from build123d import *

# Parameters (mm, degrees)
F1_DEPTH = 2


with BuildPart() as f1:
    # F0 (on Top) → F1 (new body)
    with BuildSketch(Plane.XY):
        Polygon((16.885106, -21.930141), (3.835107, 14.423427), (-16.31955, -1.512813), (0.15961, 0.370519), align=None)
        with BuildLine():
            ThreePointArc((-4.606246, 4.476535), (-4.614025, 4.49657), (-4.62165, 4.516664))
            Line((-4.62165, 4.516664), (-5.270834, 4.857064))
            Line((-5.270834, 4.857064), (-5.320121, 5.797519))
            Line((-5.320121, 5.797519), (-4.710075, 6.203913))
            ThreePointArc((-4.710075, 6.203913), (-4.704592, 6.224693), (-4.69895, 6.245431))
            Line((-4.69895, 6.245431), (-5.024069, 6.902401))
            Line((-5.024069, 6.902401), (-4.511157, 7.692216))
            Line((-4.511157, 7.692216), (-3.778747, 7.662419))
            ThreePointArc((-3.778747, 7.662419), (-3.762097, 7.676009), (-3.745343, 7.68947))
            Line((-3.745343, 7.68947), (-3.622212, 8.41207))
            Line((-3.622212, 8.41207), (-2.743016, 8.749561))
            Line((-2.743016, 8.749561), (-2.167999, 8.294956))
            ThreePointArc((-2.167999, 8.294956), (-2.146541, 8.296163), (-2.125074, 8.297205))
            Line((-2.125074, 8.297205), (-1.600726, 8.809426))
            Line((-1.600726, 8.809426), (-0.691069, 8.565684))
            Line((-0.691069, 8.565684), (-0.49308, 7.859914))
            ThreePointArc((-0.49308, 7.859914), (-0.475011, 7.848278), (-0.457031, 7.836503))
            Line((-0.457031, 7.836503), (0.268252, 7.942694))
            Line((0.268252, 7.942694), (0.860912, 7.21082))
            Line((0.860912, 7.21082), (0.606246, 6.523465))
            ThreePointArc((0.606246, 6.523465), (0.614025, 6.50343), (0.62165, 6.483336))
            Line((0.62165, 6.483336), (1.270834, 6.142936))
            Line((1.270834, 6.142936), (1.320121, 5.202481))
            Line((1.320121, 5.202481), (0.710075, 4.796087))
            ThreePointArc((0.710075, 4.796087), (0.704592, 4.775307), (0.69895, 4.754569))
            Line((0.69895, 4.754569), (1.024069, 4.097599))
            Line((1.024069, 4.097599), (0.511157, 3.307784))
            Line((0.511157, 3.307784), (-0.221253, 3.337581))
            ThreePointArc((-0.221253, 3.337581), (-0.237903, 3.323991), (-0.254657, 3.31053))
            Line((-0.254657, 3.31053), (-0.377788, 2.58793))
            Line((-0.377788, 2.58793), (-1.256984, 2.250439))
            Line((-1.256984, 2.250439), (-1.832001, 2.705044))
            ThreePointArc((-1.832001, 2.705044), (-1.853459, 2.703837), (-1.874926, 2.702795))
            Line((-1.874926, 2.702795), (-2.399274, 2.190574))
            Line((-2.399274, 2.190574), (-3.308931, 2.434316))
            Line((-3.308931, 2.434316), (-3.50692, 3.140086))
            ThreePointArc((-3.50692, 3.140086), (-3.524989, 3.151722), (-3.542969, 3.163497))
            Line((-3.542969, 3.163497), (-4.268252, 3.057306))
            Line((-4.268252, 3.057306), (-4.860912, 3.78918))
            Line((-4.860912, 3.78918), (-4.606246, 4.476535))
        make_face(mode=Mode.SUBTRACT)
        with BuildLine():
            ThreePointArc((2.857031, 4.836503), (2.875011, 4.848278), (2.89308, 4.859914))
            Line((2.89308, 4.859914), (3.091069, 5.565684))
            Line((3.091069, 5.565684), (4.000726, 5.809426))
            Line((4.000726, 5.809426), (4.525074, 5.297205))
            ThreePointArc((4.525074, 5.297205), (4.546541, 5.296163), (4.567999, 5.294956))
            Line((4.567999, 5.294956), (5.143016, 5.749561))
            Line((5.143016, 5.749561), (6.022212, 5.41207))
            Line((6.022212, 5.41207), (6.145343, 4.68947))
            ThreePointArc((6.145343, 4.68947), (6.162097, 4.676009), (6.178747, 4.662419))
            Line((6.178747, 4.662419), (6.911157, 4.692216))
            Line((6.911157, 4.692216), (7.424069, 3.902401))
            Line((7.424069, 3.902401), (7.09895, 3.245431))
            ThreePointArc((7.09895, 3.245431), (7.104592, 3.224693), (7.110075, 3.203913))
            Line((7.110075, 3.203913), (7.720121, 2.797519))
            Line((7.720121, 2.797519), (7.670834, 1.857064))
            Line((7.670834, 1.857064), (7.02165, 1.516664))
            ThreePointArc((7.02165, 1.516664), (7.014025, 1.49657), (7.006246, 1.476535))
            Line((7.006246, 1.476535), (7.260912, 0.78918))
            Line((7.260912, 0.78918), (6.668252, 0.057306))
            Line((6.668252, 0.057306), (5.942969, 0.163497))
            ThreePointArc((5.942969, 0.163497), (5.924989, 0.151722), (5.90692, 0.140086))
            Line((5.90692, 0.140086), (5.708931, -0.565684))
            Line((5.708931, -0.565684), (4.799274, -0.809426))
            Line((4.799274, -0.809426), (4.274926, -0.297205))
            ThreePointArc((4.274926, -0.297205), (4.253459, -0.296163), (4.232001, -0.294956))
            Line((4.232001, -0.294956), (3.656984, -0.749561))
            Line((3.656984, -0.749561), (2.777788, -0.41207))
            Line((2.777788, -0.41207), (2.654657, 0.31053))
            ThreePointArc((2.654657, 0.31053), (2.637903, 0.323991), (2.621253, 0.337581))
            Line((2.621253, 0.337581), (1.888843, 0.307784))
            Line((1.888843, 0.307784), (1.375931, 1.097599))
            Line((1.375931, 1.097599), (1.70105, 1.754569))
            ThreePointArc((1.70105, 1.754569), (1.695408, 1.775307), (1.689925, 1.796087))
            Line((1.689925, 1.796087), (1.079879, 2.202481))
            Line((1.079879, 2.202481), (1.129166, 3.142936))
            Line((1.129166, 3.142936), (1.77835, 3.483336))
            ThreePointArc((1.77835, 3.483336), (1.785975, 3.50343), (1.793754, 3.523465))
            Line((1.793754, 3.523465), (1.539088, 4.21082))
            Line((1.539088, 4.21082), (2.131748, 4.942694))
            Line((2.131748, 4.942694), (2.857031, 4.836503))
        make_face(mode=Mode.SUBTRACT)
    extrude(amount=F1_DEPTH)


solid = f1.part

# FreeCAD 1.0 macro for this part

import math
import FreeCAD as App
import Part
import Sketcher
from FreeCAD import Vector
Q = App.Units.Quantity

doc = App.newDocument("Part")
body = doc.addObject("PartDesign::Body", "Body")

# Sketch on XY plane
sketch1 = body.newObject("Sketcher::SketchObject", "Sketch")
sketch1.AttachmentSupport = (doc.getObject("XY_Plane"), [""])
sketch1.MapMode = "FlatFace"
sketch1.addGeometry(Part.LineSegment(Vector(16.885, -21.93, 0), Vector(3.835, 14.423, 0)), False)
sketch1.addGeometry(Part.LineSegment(Vector(3.835, 14.423, 0), Vector(-16.32, -1.513, 0)), False)
sketch1.addGeometry(Part.LineSegment(Vector(-16.32, -1.513, 0), Vector(0.16, 0.371, 0)), False)
sketch1.addGeometry(Part.LineSegment(Vector(0.16, 0.371, 0), Vector(16.885, -21.93, 0)), False)
sketch1.addGeometry(Part.LineSegment(Vector(2.132, 4.943, 0), Vector(2.857, 4.837, 0)), False)
sketch1.addGeometry(Part.ArcOfCircle(Part.Circle(Vector(4.399, 2.501, 0), Vector(0, 0, 1), 2.799), math.radians(122.56), math.radians(123.44)), False)
sketch1.addGeometry(Part.LineSegment(Vector(2.893, 4.86, 0), Vector(3.091, 5.566, 0)), False)
sketch1.addGeometry(Part.LineSegment(Vector(3.091, 5.566, 0), Vector(4.001, 5.809, 0)), False)
sketch1.addGeometry(Part.LineSegment(Vector(4.001, 5.809, 0), Vector(4.525, 5.297, 0)), False)
sketch1.addGeometry(Part.ArcOfCircle(Part.Circle(Vector(4.4, 2.505, 0), Vector(0, 0, 1), 2.795), math.radians(86.56), math.radians(87.44)), False)
sketch1.addGeometry(Part.LineSegment(Vector(4.568, 5.295, 0), Vector(5.143, 5.75, 0)), False)
sketch1.addGeometry(Part.LineSegment(Vector(5.143, 5.75, 0), Vector(6.022, 5.412, 0)), False)
sketch1.addGeometry(Part.LineSegment(Vector(6.022, 5.412, 0), Vector(6.145, 4.689, 0)), False)
sketch1.addGeometry(Part.ArcOfCircle(Part.Circle(Vector(4.408, 2.51, 0), Vector(0, 0, 1), 2.788), math.radians(50.56), math.radians(51.44)), False)
sketch1.addGeometry(Part.LineSegment(Vector(6.179, 4.662, 0), Vector(6.911, 4.692, 0)), False)
sketch1.addGeometry(Part.LineSegment(Vector(6.911, 4.692, 0), Vector(7.424, 3.902, 0)), False)
sketch1.addGeometry(Part.LineSegment(Vector(7.424, 3.902, 0), Vector(7.099, 3.245, 0)), False)
sketch1.addGeometry(Part.ArcOfCircle(Part.Circle(Vector(4.392, 2.498, 0), Vector(0, 0, 1), 2.809), math.radians(14.56), math.radians(15.44)), False)
sketch1.addGeometry(Part.LineSegment(Vector(7.11, 3.204, 0), Vector(7.72, 2.798, 0)), False)
sketch1.addGeometry(Part.LineSegment(Vector(7.72, 2.798, 0), Vector(7.671, 1.857, 0)), False)
sketch1.addGeometry(Part.LineSegment(Vector(7.671, 1.857, 0), Vector(7.022, 1.517, 0)), False)
sketch1.addGeometry(Part.ArcOfCircle(Part.Circle(Vector(4.399, 2.5, 0), Vector(0, 0, 1), 2.801), math.radians(-21.44), math.radians(-20.56)), False)
sketch1.addGeometry(Part.LineSegment(Vector(7.006, 1.477, 0), Vector(7.261, 0.789, 0)), False)
sketch1.addGeometry(Part.LineSegment(Vector(7.261, 0.789, 0), Vector(6.668, 0.057, 0)), False)
sketch1.addGeometry(Part.LineSegment(Vector(6.668, 0.057, 0), Vector(5.943, 0.163, 0)), False)
sketch1.addGeometry(Part.ArcOfCircle(Part.Circle(Vector(4.401, 2.499, 0), Vector(0, 0, 1), 2.799), math.radians(-57.44), math.radians(-56.56)), False)
sketch1.addGeometry(Part.LineSegment(Vector(5.907, 0.14, 0), Vector(5.709, -0.566, 0)), False)
sketch1.addGeometry(Part.LineSegment(Vector(5.709, -0.566, 0), Vector(4.799, -0.809, 0)), False)
sketch1.addGeometry(Part.LineSegment(Vector(4.799, -0.809, 0), Vector(4.275, -0.297, 0)), False)
sketch1.addGeometry(Part.ArcOfCircle(Part.Circle(Vector(4.4, 2.495, 0), Vector(0, 0, 1), 2.795), math.radians(-93.44), math.radians(-92.56)), False)
sketch1.addGeometry(Part.LineSegment(Vector(4.232, -0.295, 0), Vector(3.657, -0.75, 0)), False)
sketch1.addGeometry(Part.LineSegment(Vector(3.657, -0.75, 0), Vector(2.778, -0.412, 0)), False)
sketch1.addGeometry(Part.LineSegment(Vector(2.778, -0.412, 0), Vector(2.655, 0.311, 0)), False)
sketch1.addGeometry(Part.ArcOfCircle(Part.Circle(Vector(4.392, 2.49, 0), Vector(0, 0, 1), 2.788), math.radians(-129.44), math.radians(-128.56)), False)
sketch1.addGeometry(Part.LineSegment(Vector(2.621, 0.338, 0), Vector(1.889, 0.308, 0)), False)
sketch1.addGeometry(Part.LineSegment(Vector(1.889, 0.308, 0), Vector(1.376, 1.098, 0)), False)
sketch1.addGeometry(Part.LineSegment(Vector(1.376, 1.098, 0), Vector(1.701, 1.755, 0)), False)
sketch1.addGeometry(Part.ArcOfCircle(Part.Circle(Vector(4.408, 2.502, 0), Vector(0, 0, 1), 2.809), math.radians(-165.44), math.radians(-164.56)), False)
sketch1.addGeometry(Part.LineSegment(Vector(1.69, 1.796, 0), Vector(1.08, 2.202, 0)), False)
sketch1.addGeometry(Part.LineSegment(Vector(1.08, 2.202, 0), Vector(1.129, 3.143, 0)), False)
sketch1.addGeometry(Part.LineSegment(Vector(1.129, 3.143, 0), Vector(1.778, 3.483, 0)), False)
sketch1.addGeometry(Part.ArcOfCircle(Part.Circle(Vector(4.401, 2.5, 0), Vector(0, 0, 1), 2.801), math.radians(158.56), math.radians(159.44)), False)
sketch1.addGeometry(Part.LineSegment(Vector(1.794, 3.523, 0), Vector(1.539, 4.211, 0)), False)
sketch1.addGeometry(Part.LineSegment(Vector(1.539, 4.211, 0), Vector(2.132, 4.943, 0)), False)
sketch1.addGeometry(Part.LineSegment(Vector(-4.861, 3.789, 0), Vector(-4.606, 4.477, 0)), False)
sketch1.addGeometry(Part.ArcOfCircle(Part.Circle(Vector(-1.999, 5.5, 0), Vector(0, 0, 1), 2.801), math.radians(-159.44), math.radians(-158.56)), False)
sketch1.addGeometry(Part.LineSegment(Vector(-4.622, 4.517, 0), Vector(-5.271, 4.857, 0)), False)
sketch1.addGeometry(Part.LineSegment(Vector(-5.271, 4.857, 0), Vector(-5.32, 5.798, 0)), False)
sketch1.addGeometry(Part.LineSegment(Vector(-5.32, 5.798, 0), Vector(-4.71, 6.204, 0)), False)
sketch1.addGeometry(Part.ArcOfCircle(Part.Circle(Vector(-1.992, 5.498, 0), Vector(0, 0, 1), 2.809), math.radians(164.56), math.radians(165.44)), False)
sketch1.addGeometry(Part.LineSegment(Vector(-4.699, 6.245, 0), Vector(-5.024, 6.902, 0)), False)
sketch1.addGeometry(Part.LineSegment(Vector(-5.024, 6.902, 0), Vector(-4.511, 7.692, 0)), False)
sketch1.addGeometry(Part.LineSegment(Vector(-4.511, 7.692, 0), Vector(-3.779, 7.662, 0)), False)
sketch1.addGeometry(Part.ArcOfCircle(Part.Circle(Vector(-2.008, 5.51, 0), Vector(0, 0, 1), 2.788), math.radians(128.56), math.radians(129.44)), False)
sketch1.addGeometry(Part.LineSegment(Vector(-3.745, 7.689, 0), Vector(-3.622, 8.412, 0)), False)
sketch1.addGeometry(Part.LineSegment(Vector(-3.622, 8.412, 0), Vector(-2.743, 8.75, 0)), False)
sketch1.addGeometry(Part.LineSegment(Vector(-2.743, 8.75, 0), Vector(-2.168, 8.295, 0)), False)
sketch1.addGeometry(Part.ArcOfCircle(Part.Circle(Vector(-2, 5.505, 0), Vector(0, 0, 1), 2.795), math.radians(92.56), math.radians(93.44)), False)
sketch1.addGeometry(Part.LineSegment(Vector(-2.125, 8.297, 0), Vector(-1.601, 8.809, 0)), False)
sketch1.addGeometry(Part.LineSegment(Vector(-1.601, 8.809, 0), Vector(-0.691, 8.566, 0)), False)
sketch1.addGeometry(Part.LineSegment(Vector(-0.691, 8.566, 0), Vector(-0.493, 7.86, 0)), False)
sketch1.addGeometry(Part.ArcOfCircle(Part.Circle(Vector(-1.999, 5.501, 0), Vector(0, 0, 1), 2.799), math.radians(56.56), math.radians(57.44)), False)
sketch1.addGeometry(Part.LineSegment(Vector(-0.457, 7.837, 0), Vector(0.268, 7.943, 0)), False)
sketch1.addGeometry(Part.LineSegment(Vector(0.268, 7.943, 0), Vector(0.861, 7.211, 0)), False)
sketch1.addGeometry(Part.LineSegment(Vector(0.861, 7.211, 0), Vector(0.606, 6.523, 0)), False)
sketch1.addGeometry(Part.ArcOfCircle(Part.Circle(Vector(-2.001, 5.5, 0), Vector(0, 0, 1), 2.801), math.radians(20.56), math.radians(21.44)), False)
sketch1.addGeometry(Part.LineSegment(Vector(0.622, 6.483, 0), Vector(1.271, 6.143, 0)), False)
sketch1.addGeometry(Part.LineSegment(Vector(1.271, 6.143, 0), Vector(1.32, 5.202, 0)), False)
sketch1.addGeometry(Part.LineSegment(Vector(1.32, 5.202, 0), Vector(0.71, 4.796, 0)), False)
sketch1.addGeometry(Part.ArcOfCircle(Part.Circle(Vector(-2.008, 5.502, 0), Vector(0, 0, 1), 2.809), math.radians(-15.44), math.radians(-14.56)), False)
sketch1.addGeometry(Part.LineSegment(Vector(0.699, 4.755, 0), Vector(1.024, 4.098, 0)), False)
sketch1.addGeometry(Part.LineSegment(Vector(1.024, 4.098, 0), Vector(0.511, 3.308, 0)), False)
sketch1.addGeometry(Part.LineSegment(Vector(0.511, 3.308, 0), Vector(-0.221, 3.338, 0)), False)
sketch1.addGeometry(Part.ArcOfCircle(Part.Circle(Vector(-1.992, 5.49, 0), Vector(0, 0, 1), 2.788), math.radians(-51.44), math.radians(-50.56)), False)
sketch1.addGeometry(Part.LineSegment(Vector(-0.255, 3.311, 0), Vector(-0.378, 2.588, 0)), False)
sketch1.addGeometry(Part.LineSegment(Vector(-0.378, 2.588, 0), Vector(-1.257, 2.25, 0)), False)
sketch1.addGeometry(Part.LineSegment(Vector(-1.257, 2.25, 0), Vector(-1.832, 2.705, 0)), False)
sketch1.addGeometry(Part.ArcOfCircle(Part.Circle(Vector(-2, 5.495, 0), Vector(0, 0, 1), 2.795), math.radians(-87.44), math.radians(-86.56)), False)
sketch1.addGeometry(Part.LineSegment(Vector(-1.875, 2.703, 0), Vector(-2.399, 2.191, 0)), False)
sketch1.addGeometry(Part.LineSegment(Vector(-2.399, 2.191, 0), Vector(-3.309, 2.434, 0)), False)
sketch1.addGeometry(Part.LineSegment(Vector(-3.309, 2.434, 0), Vector(-3.507, 3.14, 0)), False)
sketch1.addGeometry(Part.ArcOfCircle(Part.Circle(Vector(-2.001, 5.499, 0), Vector(0, 0, 1), 2.799), math.radians(-123.44), math.radians(-122.56)), False)
sketch1.addGeometry(Part.LineSegment(Vector(-3.543, 3.163, 0), Vector(-4.268, 3.057, 0)), False)
sketch1.addGeometry(Part.LineSegment(Vector(-4.268, 3.057, 0), Vector(-4.861, 3.789, 0)), False)
sketch1.addConstraint(Sketcher.Constraint("Coincident", 0, 2, 1, 1))
sketch1.addConstraint(Sketcher.Constraint("Coincident", 1, 2, 2, 1))
sketch1.addConstraint(Sketcher.Constraint("Coincident", 2, 2, 3, 1))
sketch1.addConstraint(Sketcher.Constraint("Coincident", 3, 2, 0, 1))
sketch1.addConstraint(Sketcher.Constraint("Coincident", 4, 2, 5, 2))
sketch1.addConstraint(Sketcher.Constraint("Coincident", 5, 1, 6, 1))
sketch1.addConstraint(Sketcher.Constraint("Coincident", 6, 2, 7, 1))
sketch1.addConstraint(Sketcher.Constraint("Coincident", 7, 2, 8, 1))
sketch1.addConstraint(Sketcher.Constraint("Coincident", 8, 2, 9, 2))
sketch1.addConstraint(Sketcher.Constraint("Coincident", 9, 1, 10, 1))
sketch1.addConstraint(Sketcher.Constraint("Coincident", 10, 2, 11, 1))
sketch1.addConstraint(Sketcher.Constraint("Coincident", 11, 2, 12, 1))
sketch1.addConstraint(Sketcher.Constraint("Coincident", 12, 2, 13, 2))
sketch1.addConstraint(Sketcher.Constraint("Coincident", 13, 1, 14, 1))
sketch1.addConstraint(Sketcher.Constraint("Coincident", 14, 2, 15, 1))
sketch1.addConstraint(Sketcher.Constraint("Coincident", 15, 2, 16, 1))
sketch1.addConstraint(Sketcher.Constraint("Coincident", 16, 2, 17, 2))
sketch1.addConstraint(Sketcher.Constraint("Coincident", 17, 1, 18, 1))
sketch1.addConstraint(Sketcher.Constraint("Coincident", 18, 2, 19, 1))
sketch1.addConstraint(Sketcher.Constraint("Coincident", 19, 2, 20, 1))
sketch1.addConstraint(Sketcher.Constraint("Coincident", 20, 2, 21, 2))
sketch1.addConstraint(Sketcher.Constraint("Coincident", 21, 1, 22, 1))
sketch1.addConstraint(Sketcher.Constraint("Coincident", 22, 2, 23, 1))
sketch1.addConstraint(Sketcher.Constraint("Coincident", 23, 2, 24, 1))
sketch1.addConstraint(Sketcher.Constraint("Coincident", 24, 2, 25, 2))
sketch1.addConstraint(Sketcher.Constraint("Coincident", 25, 1, 26, 1))
sketch1.addConstraint(Sketcher.Constraint("Coincident", 26, 2, 27, 1))
sketch1.addConstraint(Sketcher.Constraint("Coincident", 27, 2, 28, 1))
sketch1.addConstraint(Sketcher.Constraint("Coincident", 28, 2, 29, 2))
sketch1.addConstraint(Sketcher.Constraint("Coincident", 29, 1, 30, 1))
sketch1.addConstraint(Sketcher.Constraint("Coincident", 30, 2, 31, 1))
sketch1.addConstraint(Sketcher.Constraint("Coincident", 31, 2, 32, 1))
sketch1.addConstraint(Sketcher.Constraint("Coincident", 32, 2, 33, 2))
sketch1.addConstraint(Sketcher.Constraint("Coincident", 33, 1, 34, 1))
sketch1.addConstraint(Sketcher.Constraint("Coincident", 34, 2, 35, 1))
sketch1.addConstraint(Sketcher.Constraint("Coincident", 35, 2, 36, 1))
sketch1.addConstraint(Sketcher.Constraint("Coincident", 36, 2, 37, 2))
sketch1.addConstraint(Sketcher.Constraint("Coincident", 37, 1, 38, 1))
sketch1.addConstraint(Sketcher.Constraint("Coincident", 38, 2, 39, 1))
sketch1.addConstraint(Sketcher.Constraint("Coincident", 39, 2, 40, 1))
sketch1.addConstraint(Sketcher.Constraint("Coincident", 40, 2, 41, 2))
sketch1.addConstraint(Sketcher.Constraint("Coincident", 41, 1, 42, 1))
sketch1.addConstraint(Sketcher.Constraint("Coincident", 42, 2, 43, 1))
sketch1.addConstraint(Sketcher.Constraint("Coincident", 43, 2, 4, 1))
sketch1.addConstraint(Sketcher.Constraint("Coincident", 44, 2, 45, 2))
sketch1.addConstraint(Sketcher.Constraint("Coincident", 45, 1, 46, 1))
sketch1.addConstraint(Sketcher.Constraint("Coincident", 46, 2, 47, 1))
sketch1.addConstraint(Sketcher.Constraint("Coincident", 47, 2, 48, 1))
sketch1.addConstraint(Sketcher.Constraint("Coincident", 48, 2, 49, 2))
sketch1.addConstraint(Sketcher.Constraint("Coincident", 49, 1, 50, 1))
sketch1.addConstraint(Sketcher.Constraint("Coincident", 50, 2, 51, 1))
sketch1.addConstraint(Sketcher.Constraint("Coincident", 51, 2, 52, 1))
sketch1.addConstraint(Sketcher.Constraint("Coincident", 52, 2, 53, 2))
sketch1.addConstraint(Sketcher.Constraint("Coincident", 53, 1, 54, 1))
sketch1.addConstraint(Sketcher.Constraint("Coincident", 54, 2, 55, 1))
sketch1.addConstraint(Sketcher.Constraint("Coincident", 55, 2, 56, 1))
sketch1.addConstraint(Sketcher.Constraint("Coincident", 56, 2, 57, 2))
sketch1.addConstraint(Sketcher.Constraint("Coincident", 57, 1, 58, 1))
sketch1.addConstraint(Sketcher.Constraint("Coincident", 58, 2, 59, 1))
sketch1.addConstraint(Sketcher.Constraint("Coincident", 59, 2, 60, 1))
sketch1.addConstraint(Sketcher.Constraint("Coincident", 60, 2, 61, 2))
sketch1.addConstraint(Sketcher.Constraint("Coincident", 61, 1, 62, 1))
sketch1.addConstraint(Sketcher.Constraint("Coincident", 62, 2, 63, 1))
sketch1.addConstraint(Sketcher.Constraint("Coincident", 63, 2, 64, 1))
sketch1.addConstraint(Sketcher.Constraint("Coincident", 64, 2, 65, 2))
sketch1.addConstraint(Sketcher.Constraint("Coincident", 65, 1, 66, 1))
sketch1.addConstraint(Sketcher.Constraint("Coincident", 66, 2, 67, 1))
sketch1.addConstraint(Sketcher.Constraint("Coincident", 67, 2, 68, 1))
sketch1.addConstraint(Sketcher.Constraint("Coincident", 68, 2, 69, 2))
sketch1.addConstraint(Sketcher.Constraint("Coincident", 69, 1, 70, 1))
sketch1.addConstraint(Sketcher.Constraint("Coincident", 70, 2, 71, 1))
sketch1.addConstraint(Sketcher.Constraint("Coincident", 71, 2, 72, 1))
sketch1.addConstraint(Sketcher.Constraint("Coincident", 72, 2, 73, 2))
sketch1.addConstraint(Sketcher.Constraint("Coincident", 73, 1, 74, 1))
sketch1.addConstraint(Sketcher.Constraint("Coincident", 74, 2, 75, 1))
sketch1.addConstraint(Sketcher.Constraint("Coincident", 75, 2, 76, 1))
sketch1.addConstraint(Sketcher.Constraint("Coincident", 76, 2, 77, 2))
sketch1.addConstraint(Sketcher.Constraint("Coincident", 77, 1, 78, 1))
sketch1.addConstraint(Sketcher.Constraint("Coincident", 78, 2, 79, 1))
sketch1.addConstraint(Sketcher.Constraint("Coincident", 79, 2, 80, 1))
sketch1.addConstraint(Sketcher.Constraint("Coincident", 80, 2, 81, 2))
sketch1.addConstraint(Sketcher.Constraint("Coincident", 81, 1, 82, 1))
sketch1.addConstraint(Sketcher.Constraint("Coincident", 82, 2, 83, 1))
sketch1.addConstraint(Sketcher.Constraint("Coincident", 83, 2, 44, 1))
sketch1.addConstraint(Sketcher.Constraint("Equal", 5, 25))
sketch1.addConstraint(Sketcher.Constraint("Equal", 9, 29))
sketch1.addConstraint(Sketcher.Constraint("Equal", 13, 33))
sketch1.addConstraint(Sketcher.Constraint("Equal", 17, 37))
sketch1.addConstraint(Sketcher.Constraint("Equal", 21, 41))
sketch1.addConstraint(Sketcher.Constraint("Equal", 41, 45))
sketch1.addConstraint(Sketcher.Constraint("Equal", 37, 49))
sketch1.addConstraint(Sketcher.Constraint("Equal", 33, 53))
sketch1.addConstraint(Sketcher.Constraint("Equal", 29, 57))
sketch1.addConstraint(Sketcher.Constraint("Equal", 25, 61))
sketch1.addConstraint(Sketcher.Constraint("Equal", 45, 65))
sketch1.addConstraint(Sketcher.Constraint("Equal", 49, 69))
sketch1.addConstraint(Sketcher.Constraint("Equal", 53, 73))
sketch1.addConstraint(Sketcher.Constraint("Equal", 57, 77))
sketch1.addConstraint(Sketcher.Constraint("Equal", 61, 81))
sketch1.addConstraint(Sketcher.Constraint("Parallel", 4, 24))
sketch1.addConstraint(Sketcher.Constraint("Parallel", 6, 26))
sketch1.addConstraint(Sketcher.Constraint("Parallel", 7, 27))
sketch1.addConstraint(Sketcher.Constraint("Parallel", 8, 28))
sketch1.addConstraint(Sketcher.Constraint("Parallel", 10, 30))
sketch1.addConstraint(Sketcher.Constraint("Parallel", 11, 31))
sketch1.addConstraint(Sketcher.Constraint("Parallel", 12, 32))
sketch1.addConstraint(Sketcher.Constraint("Parallel", 14, 34))
sketch1.addConstraint(Sketcher.Constraint("Parallel", 15, 35))
sketch1.addConstraint(Sketcher.Constraint("Parallel", 16, 36))
sketch1.addConstraint(Sketcher.Constraint("Parallel", 18, 38))
sketch1.addConstraint(Sketcher.Constraint("Parallel", 19, 39))
sketch1.addConstraint(Sketcher.Constraint("Parallel", 20, 40))
sketch1.addConstraint(Sketcher.Constraint("Parallel", 22, 42))
sketch1.addConstraint(Sketcher.Constraint("Parallel", 23, 43))
sketch1.addConstraint(Sketcher.Constraint("Parallel", 44, 64))
sketch1.addConstraint(Sketcher.Constraint("Parallel", 46, 66))
sketch1.addConstraint(Sketcher.Constraint("Parallel", 47, 67))
sketch1.addConstraint(Sketcher.Constraint("Parallel", 48, 68))
sketch1.addConstraint(Sketcher.Constraint("Parallel", 50, 70))
sketch1.addConstraint(Sketcher.Constraint("Parallel", 51, 71))
sketch1.addConstraint(Sketcher.Constraint("Parallel", 52, 72))
sketch1.addConstraint(Sketcher.Constraint("Parallel", 54, 74))
sketch1.addConstraint(Sketcher.Constraint("Parallel", 55, 75))
sketch1.addConstraint(Sketcher.Constraint("Parallel", 56, 76))
sketch1.addConstraint(Sketcher.Constraint("Parallel", 58, 78))
sketch1.addConstraint(Sketcher.Constraint("Parallel", 59, 79))
sketch1.addConstraint(Sketcher.Constraint("Parallel", 60, 80))
sketch1.addConstraint(Sketcher.Constraint("Parallel", 62, 82))
sketch1.addConstraint(Sketcher.Constraint("Parallel", 63, 83))
sketch1.addConstraint(Sketcher.Constraint("Equal", 4, 6))
sketch1.addConstraint(Sketcher.Constraint("Equal", 6, 8))
sketch1.addConstraint(Sketcher.Constraint("Equal", 8, 10))
sketch1.addConstraint(Sketcher.Constraint("Equal", 7, 11))
sketch1.addConstraint(Sketcher.Constraint("Equal", 10, 12))
sketch1.addConstraint(Sketcher.Constraint("Equal", 12, 14))
sketch1.addConstraint(Sketcher.Constraint("Equal", 11, 15))
sketch1.addConstraint(Sketcher.Constraint("Equal", 14, 16))
sketch1.addConstraint(Sketcher.Constraint("Equal", 16, 18))
sketch1.addConstraint(Sketcher.Constraint("Equal", 15, 19))
sketch1.addConstraint(Sketcher.Constraint("Equal", 18, 20))
sketch1.addConstraint(Sketcher.Constraint("Equal", 20, 22))
sketch1.addConstraint(Sketcher.Constraint("Equal", 19, 23))
sketch1.addConstraint(Sketcher.Constraint("Equal", 22, 24))
sketch1.addConstraint(Sketcher.Constraint("Equal", 24, 26))
sketch1.addConstraint(Sketcher.Constraint("Equal", 23, 27))
sketch1.addConstraint(Sketcher.Constraint("Equal", 26, 28))
sketch1.addConstraint(Sketcher.Constraint("Equal", 28, 30))
sketch1.addConstraint(Sketcher.Constraint("Equal", 27, 31))
sketch1.addConstraint(Sketcher.Constraint("Equal", 30, 32))
sketch1.addConstraint(Sketcher.Constraint("Equal", 32, 34))
sketch1.addConstraint(Sketcher.Constraint("Equal", 31, 35))
sketch1.addConstraint(Sketcher.Constraint("Equal", 34, 36))
sketch1.addConstraint(Sketcher.Constraint("Equal", 36, 38))
sketch1.addConstraint(Sketcher.Constraint("Equal", 35, 39))
sketch1.addConstraint(Sketcher.Constraint("Equal", 38, 40))
sketch1.addConstraint(Sketcher.Constraint("Equal", 40, 42))
sketch1.addConstraint(Sketcher.Constraint("Equal", 39, 43))
sketch1.addConstraint(Sketcher.Constraint("Equal", 42, 44))
sketch1.addConstraint(Sketcher.Constraint("Equal", 44, 46))
sketch1.addConstraint(Sketcher.Constraint("Equal", 43, 47))
sketch1.addConstraint(Sketcher.Constraint("Equal", 46, 48))
sketch1.addConstraint(Sketcher.Constraint("Equal", 48, 50))
sketch1.addConstraint(Sketcher.Constraint("Equal", 47, 51))
sketch1.addConstraint(Sketcher.Constraint("Equal", 50, 52))
sketch1.addConstraint(Sketcher.Constraint("Equal", 52, 54))
sketch1.addConstraint(Sketcher.Constraint("Equal", 51, 55))
sketch1.addConstraint(Sketcher.Constraint("Equal", 54, 56))
sketch1.addConstraint(Sketcher.Constraint("Equal", 56, 58))
sketch1.addConstraint(Sketcher.Constraint("Equal", 55, 59))
sketch1.addConstraint(Sketcher.Constraint("Equal", 58, 60))
sketch1.addConstraint(Sketcher.Constraint("Equal", 60, 62))
sketch1.addConstraint(Sketcher.Constraint("Equal", 59, 63))
sketch1.addConstraint(Sketcher.Constraint("Equal", 62, 64))
sketch1.addConstraint(Sketcher.Constraint("Equal", 64, 66))
sketch1.addConstraint(Sketcher.Constraint("Equal", 63, 67))
sketch1.addConstraint(Sketcher.Constraint("Equal", 66, 68))
sketch1.addConstraint(Sketcher.Constraint("Equal", 68, 70))
sketch1.addConstraint(Sketcher.Constraint("Equal", 67, 71))
sketch1.addConstraint(Sketcher.Constraint("Equal", 70, 72))
sketch1.addConstraint(Sketcher.Constraint("Equal", 72, 74))
sketch1.addConstraint(Sketcher.Constraint("Equal", 71, 75))
sketch1.addConstraint(Sketcher.Constraint("Equal", 74, 76))
sketch1.addConstraint(Sketcher.Constraint("Equal", 76, 78))
sketch1.addConstraint(Sketcher.Constraint("Equal", 75, 79))
sketch1.addConstraint(Sketcher.Constraint("Equal", 78, 80))
sketch1.addConstraint(Sketcher.Constraint("Equal", 80, 82))
sketch1.addConstraint(Sketcher.Constraint("Equal", 79, 83))
sketch1.addConstraint(Sketcher.Constraint("Angle", 7, Q("15.000008 deg")))
sketch1.addConstraint(Sketcher.Constraint("Angle", 15, Q("-56.999993 deg")))
sketch1.addConstraint(Sketcher.Constraint("Angle", 19, Q("-92.99999 deg")))
sketch1.addConstraint(Sketcher.Constraint("Angle", 23, Q("-129.000006 deg")))
sketch1.addConstraint(Sketcher.Constraint("Angle", 47, Q("92.99999 deg")))
sketch1.addConstraint(Sketcher.Constraint("Angle", 51, Q("56.999993 deg")))
sketch1.addConstraint(Sketcher.Constraint("Angle", 59, Q("-15.000008 deg")))
sketch1.addConstraint(Sketcher.Constraint("Angle", 63, Q("-50.999994 deg")))
sketch1.addConstraint(Sketcher.Constraint("DistanceX", -1, 1, 9, 1, 4.567999))
sketch1.addConstraint(Sketcher.Constraint("DistanceX", -1, 1, 29, 1, 4.232001))
sketch1.addConstraint(Sketcher.Constraint("DistanceX", 56, 2, -1, 1, 2.167999))
sketch1.addConstraint(Sketcher.Constraint("DistanceX", 76, 2, -1, 1, 1.832001))
sketch1.addConstraint(Sketcher.Constraint("Radius", 5, 2.798628))
sketch1.addConstraint(Sketcher.Constraint("Radius", 9, 2.795307))
sketch1.addConstraint(Sketcher.Constraint("Radius", 13, 2.787566))
sketch1.addConstraint(Sketcher.Constraint("Radius", 17, 2.808616))
sketch1.addConstraint(Sketcher.Constraint("Radius", 21, 2.800907))
sketch1.addConstraint(Sketcher.Constraint("DistanceY", -1, 1, 15, 2, 3.902401))
sketch1.addConstraint(Sketcher.Constraint("DistanceY", -1, 1, 35, 2, 1.097599))
sketch1.addConstraint(Sketcher.Constraint("DistanceY", -1, 1, 50, 2, 6.902401))
sketch1.addConstraint(Sketcher.Constraint("DistanceY", -1, 1, 70, 2, 4.097599))
sketch1.addConstraint(Sketcher.Constraint("Distance", 0, 38.624919))
sketch1.addConstraint(Sketcher.Constraint("Distance", 1, 25.69385))
sketch1.addConstraint(Sketcher.Constraint("Distance", 2, 16.58643))
sketch1.addConstraint(Sketcher.Constraint("DistanceX", -1, 1, 17, 3, 4.391682))
sketch1.addConstraint(Sketcher.Constraint("DistanceX", -1, 1, 21, 3, 4.399152))
sketch1.addConstraint(Sketcher.Constraint("DistanceY", -1, 1, 21, 3, 2.500321))
sketch1.addConstraint(Sketcher.Constraint("DistanceX", -1, 1, 37, 3, 4.408318))
sketch1.addConstraint(Sketcher.Constraint("DistanceX", -1, 1, 41, 3, 4.400848))
sketch1.addConstraint(Sketcher.Constraint("DistanceY", -1, 1, 41, 3, 2.499679))
sketch1.addConstraint(Sketcher.Constraint("DistanceX", 45, 3, -1, 1, 1.999152))
sketch1.addConstraint(Sketcher.Constraint("DistanceY", -1, 1, 45, 3, 5.500321))
sketch1.addConstraint(Sketcher.Constraint("DistanceX", 49, 3, -1, 1, 1.991682))
sketch1.addConstraint(Sketcher.Constraint("DistanceX", 65, 3, -1, 1, 2.000848))
sketch1.addConstraint(Sketcher.Constraint("DistanceY", -1, 1, 65, 3, 5.499679))
sketch1.addConstraint(Sketcher.Constraint("DistanceX", 69, 3, -1, 1, 2.008318))
sketch1.addConstraint(Sketcher.Constraint("DistanceX", 1, 2, -1, 1, 16.31955))
sketch1.addConstraint(Sketcher.Constraint("DistanceX", -1, 1, 2, 2, 0.15961))
sketch1.addConstraint(Sketcher.Constraint("DistanceY", -1, 1, 2, 2, 0.370519))
sketch1.addConstraint(Sketcher.Constraint("DistanceY", 3, 2, -1, 1, 21.930141))
sketch1.addConstraint(Sketcher.Constraint("DistanceX", -1, 1, 4, 2, 2.857031))
sketch1.addConstraint(Sketcher.Constraint("DistanceX", -1, 1, 5, 1, 2.89308))
sketch1.addConstraint(Sketcher.Constraint("DistanceX", -1, 1, 6, 2, 3.091069))
sketch1.addConstraint(Sketcher.Constraint("DistanceY", -1, 1, 10, 2, 5.749561))
sketch1.addConstraint(Sketcher.Constraint("DistanceX", -1, 1, 11, 2, 6.022212))
sketch1.addConstraint(Sketcher.Constraint("DistanceY", -1, 1, 11, 2, 5.41207))
sketch1.addConstraint(Sketcher.Constraint("DistanceY", -1, 1, 12, 2, 4.68947))
sketch1.addConstraint(Sketcher.Constraint("DistanceY", -1, 1, 13, 1, 4.662419))
sketch1.addConstraint(Sketcher.Constraint("DistanceX", -1, 1, 15, 2, 7.424069))
sketch1.addConstraint(Sketcher.Constraint("DistanceX", -1, 1, 16, 2, 7.09895))
sketch1.addConstraint(Sketcher.Constraint("DistanceY", -1, 1, 16, 2, 3.245431))
sketch1.addConstraint(Sketcher.Constraint("DistanceX", -1, 1, 18, 2, 7.720121))
sketch1.addConstraint(Sketcher.Constraint("DistanceY", -1, 1, 18, 2, 2.797519))
sketch1.addConstraint(Sketcher.Constraint("DistanceX", -1, 1, 20, 2, 7.02165))
sketch1.addConstraint(Sketcher.Constraint("DistanceY", -1, 1, 22, 2, 0.78918))
sketch1.addConstraint(Sketcher.Constraint("DistanceX", -1, 1, 24, 2, 5.942969))
sketch1.addConstraint(Sketcher.Constraint("DistanceX", -1, 1, 25, 1, 5.90692))
sketch1.addConstraint(Sketcher.Constraint("DistanceY", 30, 2, -1, 1, 0.749561))
sketch1.addConstraint(Sketcher.Constraint("DistanceX", -1, 1, 35, 2, 1.375931))
sketch1.addConstraint(Sketcher.Constraint("DistanceX", -1, 1, 43, 2, 2.131748))
sketch1.addConstraint(Sketcher.Constraint("DistanceX", 45, 1, -1, 1, 4.62165))
sketch1.addConstraint(Sketcher.Constraint("DistanceX", 47, 2, -1, 1, 5.320121))
sketch1.addConstraint(Sketcher.Constraint("DistanceX", 49, 1, -1, 1, 4.69895))
sketch1.addConstraint(Sketcher.Constraint("DistanceY", -1, 1, 49, 1, 6.245431))
sketch1.addConstraint(Sketcher.Constraint("DistanceY", -1, 1, 52, 2, 7.662419))
sketch1.addConstraint(Sketcher.Constraint("DistanceY", -1, 1, 53, 1, 7.68947))
sketch1.addConstraint(Sketcher.Constraint("DistanceY", -1, 1, 54, 2, 8.41207))
sketch1.addConstraint(Sketcher.Constraint("DistanceY", -1, 1, 55, 2, 8.749561))
sketch1.addConstraint(Sketcher.Constraint("DistanceX", 59, 2, -1, 1, 0.691069))
sketch1.addConstraint(Sketcher.Constraint("DistanceX", 60, 2, -1, 1, 0.49308))
sketch1.addConstraint(Sketcher.Constraint("DistanceX", 61, 1, -1, 1, 0.457031))
sketch1.addConstraint(Sketcher.Constraint("DistanceY", -1, 1, 63, 2, 7.21082))
sketch1.addConstraint(Sketcher.Constraint("DistanceX", -1, 1, 65, 1, 0.62165))
sketch1.addConstraint(Sketcher.Constraint("DistanceY", -1, 1, 73, 1, 3.31053))
sketch1.addConstraint(Sketcher.Constraint("DistanceX", 79, 2, -1, 1, 3.308931))
sketch1.addConstraint(Sketcher.Constraint("DistanceX", 81, 1, -1, 1, 3.542969))
sketch1.addConstraint(Sketcher.Constraint("Distance", 3, 27.875826))
sketch1.addConstraint(Sketcher.Constraint("DistanceX", -1, 1, 5, 3, 4.399276))
sketch1.addConstraint(Sketcher.Constraint("DistanceX", -1, 1, 9, 3, 4.400285))
sketch1.addConstraint(Sketcher.Constraint("DistanceX", -1, 1, 25, 3, 4.400724))
sketch1.addConstraint(Sketcher.Constraint("DistanceX", 53, 3, -1, 1, 2.007787))
sketch1.addConstraint(Sketcher.Constraint("DistanceX", 57, 3, -1, 1, 2.000285))
sketch1.addConstraint(Sketcher.Constraint("DistanceX", 61, 3, -1, 1, 1.999276))
sketch1.addConstraint(Sketcher.Constraint("DistanceY", -1, 1, 61, 3, 5.501166))
sketch1.addConstraint(Sketcher.Constraint("DistanceX", 77, 3, -1, 1, 1.999715))
pad1 = body.newObject("PartDesign::Pad", "Pad")
pad1.Profile = sketch1
pad1.Length = 2

doc.recompute()
